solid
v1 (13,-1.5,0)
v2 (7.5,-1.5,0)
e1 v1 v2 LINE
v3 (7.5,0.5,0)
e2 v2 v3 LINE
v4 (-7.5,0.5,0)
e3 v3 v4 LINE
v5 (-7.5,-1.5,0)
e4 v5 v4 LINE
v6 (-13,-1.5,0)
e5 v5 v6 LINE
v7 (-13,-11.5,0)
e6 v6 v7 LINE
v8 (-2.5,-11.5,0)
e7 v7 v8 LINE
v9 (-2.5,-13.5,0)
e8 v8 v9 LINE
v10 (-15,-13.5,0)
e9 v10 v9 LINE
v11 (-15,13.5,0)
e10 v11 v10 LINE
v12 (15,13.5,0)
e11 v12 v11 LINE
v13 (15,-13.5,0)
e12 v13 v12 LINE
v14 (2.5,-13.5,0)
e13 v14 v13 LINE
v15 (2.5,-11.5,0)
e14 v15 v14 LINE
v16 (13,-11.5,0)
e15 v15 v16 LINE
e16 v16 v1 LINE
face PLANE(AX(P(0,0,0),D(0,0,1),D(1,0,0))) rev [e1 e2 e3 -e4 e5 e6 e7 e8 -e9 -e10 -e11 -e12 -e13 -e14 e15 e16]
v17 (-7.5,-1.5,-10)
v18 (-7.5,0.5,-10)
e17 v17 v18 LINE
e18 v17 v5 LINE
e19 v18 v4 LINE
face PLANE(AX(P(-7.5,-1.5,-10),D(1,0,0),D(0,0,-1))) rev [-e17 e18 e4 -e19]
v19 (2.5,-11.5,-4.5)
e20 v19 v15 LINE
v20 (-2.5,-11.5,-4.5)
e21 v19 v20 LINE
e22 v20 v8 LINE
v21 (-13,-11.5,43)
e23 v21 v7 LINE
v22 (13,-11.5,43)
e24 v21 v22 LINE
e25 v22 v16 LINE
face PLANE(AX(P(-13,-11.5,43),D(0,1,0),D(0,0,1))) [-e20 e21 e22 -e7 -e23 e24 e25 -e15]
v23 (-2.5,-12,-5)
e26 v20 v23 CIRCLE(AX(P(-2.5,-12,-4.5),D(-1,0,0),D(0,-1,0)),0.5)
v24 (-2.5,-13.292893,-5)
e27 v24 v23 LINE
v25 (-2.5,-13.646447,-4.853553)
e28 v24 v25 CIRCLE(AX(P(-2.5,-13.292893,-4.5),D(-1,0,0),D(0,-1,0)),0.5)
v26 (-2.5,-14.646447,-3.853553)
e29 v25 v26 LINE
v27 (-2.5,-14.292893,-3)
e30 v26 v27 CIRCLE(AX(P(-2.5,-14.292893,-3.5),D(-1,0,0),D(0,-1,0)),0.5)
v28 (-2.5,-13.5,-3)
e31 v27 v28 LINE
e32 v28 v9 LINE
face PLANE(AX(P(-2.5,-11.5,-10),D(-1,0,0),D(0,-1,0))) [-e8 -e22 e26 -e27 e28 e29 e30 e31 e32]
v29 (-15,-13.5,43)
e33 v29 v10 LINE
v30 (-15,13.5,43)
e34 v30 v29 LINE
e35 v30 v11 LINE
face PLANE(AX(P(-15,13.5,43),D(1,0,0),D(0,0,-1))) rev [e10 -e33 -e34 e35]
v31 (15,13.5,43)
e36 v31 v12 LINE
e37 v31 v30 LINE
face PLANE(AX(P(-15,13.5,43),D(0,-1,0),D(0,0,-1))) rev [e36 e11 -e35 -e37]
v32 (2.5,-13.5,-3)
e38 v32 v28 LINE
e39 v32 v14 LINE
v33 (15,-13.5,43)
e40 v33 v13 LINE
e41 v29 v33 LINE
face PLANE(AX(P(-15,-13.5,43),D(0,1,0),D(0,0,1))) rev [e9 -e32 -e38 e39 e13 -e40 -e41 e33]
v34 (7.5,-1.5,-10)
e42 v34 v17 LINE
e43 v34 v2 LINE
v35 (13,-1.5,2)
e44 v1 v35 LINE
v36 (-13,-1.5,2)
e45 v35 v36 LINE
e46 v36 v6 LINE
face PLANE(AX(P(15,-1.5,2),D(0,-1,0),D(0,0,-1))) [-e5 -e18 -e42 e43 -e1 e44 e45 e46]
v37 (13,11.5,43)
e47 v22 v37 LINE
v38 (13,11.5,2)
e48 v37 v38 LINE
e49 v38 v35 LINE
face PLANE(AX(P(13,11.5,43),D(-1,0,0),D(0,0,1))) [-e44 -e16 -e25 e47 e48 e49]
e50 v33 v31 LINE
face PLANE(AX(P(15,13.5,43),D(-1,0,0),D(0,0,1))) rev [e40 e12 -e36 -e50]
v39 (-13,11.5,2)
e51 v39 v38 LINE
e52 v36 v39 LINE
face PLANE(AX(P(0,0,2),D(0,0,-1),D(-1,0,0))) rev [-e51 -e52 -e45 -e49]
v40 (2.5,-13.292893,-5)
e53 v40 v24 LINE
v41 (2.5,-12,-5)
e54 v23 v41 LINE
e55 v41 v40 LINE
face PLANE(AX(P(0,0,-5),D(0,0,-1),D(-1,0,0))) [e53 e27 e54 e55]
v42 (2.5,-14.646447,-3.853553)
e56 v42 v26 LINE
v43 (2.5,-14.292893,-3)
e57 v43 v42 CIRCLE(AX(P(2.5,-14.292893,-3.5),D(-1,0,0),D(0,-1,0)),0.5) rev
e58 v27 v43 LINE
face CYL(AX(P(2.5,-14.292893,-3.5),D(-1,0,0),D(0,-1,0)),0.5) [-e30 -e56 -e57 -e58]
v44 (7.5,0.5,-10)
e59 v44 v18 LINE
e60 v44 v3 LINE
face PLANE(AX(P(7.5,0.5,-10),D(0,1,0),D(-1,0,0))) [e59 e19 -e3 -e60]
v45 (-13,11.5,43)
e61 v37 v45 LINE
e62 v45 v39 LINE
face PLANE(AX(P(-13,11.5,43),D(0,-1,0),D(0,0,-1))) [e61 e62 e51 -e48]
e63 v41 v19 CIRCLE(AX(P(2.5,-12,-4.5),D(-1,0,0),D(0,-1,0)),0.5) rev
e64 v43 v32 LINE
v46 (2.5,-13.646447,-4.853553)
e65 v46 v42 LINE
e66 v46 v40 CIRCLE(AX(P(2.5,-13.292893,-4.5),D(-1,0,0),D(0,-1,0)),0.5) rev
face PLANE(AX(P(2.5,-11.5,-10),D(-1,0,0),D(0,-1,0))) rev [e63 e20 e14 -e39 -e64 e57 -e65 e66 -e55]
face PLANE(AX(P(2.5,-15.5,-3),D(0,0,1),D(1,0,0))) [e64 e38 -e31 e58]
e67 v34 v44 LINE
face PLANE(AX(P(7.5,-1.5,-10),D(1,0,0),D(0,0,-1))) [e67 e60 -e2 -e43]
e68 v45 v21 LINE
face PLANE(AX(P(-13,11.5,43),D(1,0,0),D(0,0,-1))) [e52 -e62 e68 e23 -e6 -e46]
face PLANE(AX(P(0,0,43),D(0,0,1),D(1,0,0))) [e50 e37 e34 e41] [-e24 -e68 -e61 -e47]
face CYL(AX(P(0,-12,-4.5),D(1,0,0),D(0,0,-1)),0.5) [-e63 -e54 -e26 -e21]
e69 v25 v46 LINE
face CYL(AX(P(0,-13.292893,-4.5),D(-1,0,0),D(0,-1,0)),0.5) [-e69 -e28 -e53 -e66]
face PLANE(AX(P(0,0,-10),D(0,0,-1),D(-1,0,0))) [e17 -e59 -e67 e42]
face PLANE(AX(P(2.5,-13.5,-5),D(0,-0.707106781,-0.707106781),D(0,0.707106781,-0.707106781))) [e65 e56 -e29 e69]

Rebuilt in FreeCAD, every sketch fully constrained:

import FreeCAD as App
import Part
import Sketcher

V = App.Vector
Q = App.Units.Quantity


def edges_at(feature, points):
    """Names of the edges that pass closest to the given points."""
    edges = feature.Shape.Edges
    near = lambda p: min(range(len(edges)), key=lambda i: edges[i].distToShape(Part.Vertex(*p))[0])
    return sorted({f"Edge{near(p) + 1}" for p in points})

doc = App.newDocument("Part")
body = doc.addObject("PartDesign::Body", "Body")

# Sketch on XY plane
sketch1 = body.newObject("Sketcher::SketchObject", "Sketch")
sketch1.AttachmentSupport = (doc.getObject("XY_Plane"), [""])
sketch1.MapMode = "FlatFace"
sketch1.addGeometry([
    Part.LineSegment(V(-15, 14, 0), V(-15, -14, 0)),  # 0
    Part.LineSegment(V(-15, -14, 0), V(15, -14, 0)),  # 1
    Part.LineSegment(V(15, -14, 0), V(15, 14, 0)),  # 2
    Part.LineSegment(V(15, 14, 0), V(-15, 14, 0)),  # 3
    Part.LineSegment(V(13, -12, 0), V(-13, -12, 0)),  # 4
    Part.LineSegment(V(-13, -12, 0), V(-13, 12, 0)),  # 5
    Part.LineSegment(V(-13, 12, 0), V(13, 12, 0)),  # 6
    Part.LineSegment(V(13, 12, 0), V(13, -12, 0)),  # 7
], False)
sketch1.addConstraint([
    Sketcher.Constraint("Coincident", 0, 2, 1, 1),
    Sketcher.Constraint("Coincident", 1, 2, 2, 1),
    Sketcher.Constraint("Coincident", 2, 2, 3, 1),
    Sketcher.Constraint("Coincident", 3, 2, 0, 1),
    Sketcher.Constraint("Coincident", 4, 2, 5, 1),
    Sketcher.Constraint("Coincident", 5, 2, 6, 1),
    Sketcher.Constraint("Coincident", 6, 2, 7, 1),
    Sketcher.Constraint("Coincident", 7, 2, 4, 1),
    Sketcher.Constraint("Vertical", 0),
    Sketcher.Constraint("Horizontal", 1),
    Sketcher.Constraint("Vertical", 2),
    Sketcher.Constraint("Horizontal", 3),
    Sketcher.Constraint("Horizontal", 4),
    Sketcher.Constraint("Vertical", 5),
    Sketcher.Constraint("Horizontal", 6),
    Sketcher.Constraint("Vertical", 7),
    Sketcher.Constraint("Symmetric", 0, 2, 2, 2, -1, 1),
    Sketcher.Constraint("Symmetric", 4, 2, 6, 2, -1, 1),
    Sketcher.Constraint("DistanceX", 1, 1, 1, 2, Q("30 mm")),
    Sketcher.Constraint("DistanceX", 4, 2, 4, 1, Q("26 mm")),
    Sketcher.Constraint("DistanceY", 0, 2, 0, 1, Q("27 mm")),
    Sketcher.Constraint("DistanceY", 5, 1, 5, 2, Q("23 mm")),
])
pad1 = body.newObject("PartDesign::Pad", "Pad")
pad1.Profile = sketch1
pad1.Length = 43

# Sketch on XY plane
sketch2 = body.newObject("Sketcher::SketchObject", "Sketch001")
sketch2.AttachmentSupport = (doc.getObject("XY_Plane"), [""])
sketch2.MapMode = "FlatFace"
sketch2.addGeometry([
    Part.LineSegment(V(15, 14, 0), V(15, -2, 0)),
    Part.LineSegment(V(15, -2, 0), V(-15, -2, 0)),
    Part.LineSegment(V(-15, -2, 0), V(-15, 14, 0)),
    Part.LineSegment(V(-15, 14, 0), V(15, 14, 0)),
], False)
sketch2.addConstraint([
    Sketcher.Constraint("Coincident", 0, 2, 1, 1),
    Sketcher.Constraint("Coincident", 1, 2, 2, 1),
    Sketcher.Constraint("Coincident", 2, 2, 3, 1),
    Sketcher.Constraint("Coincident", 3, 2, 0, 1),
    Sketcher.Constraint("Vertical", 0),
    Sketcher.Constraint("Horizontal", 1),
    Sketcher.Constraint("Vertical", 2),
    Sketcher.Constraint("Horizontal", 3),
    Sketcher.Constraint("DistanceX", 1, 2, 1, 1, Q("30 mm")),
    Sketcher.Constraint("DistanceY", 0, 2, 0, 1, Q("15 mm")),
    Sketcher.Constraint("DistanceX", -1, 1, 0, 2, Q("15 mm")),
    Sketcher.Constraint("DistanceY", 0, 2, -1, 1, Q("1.5 mm")),
])
pad2 = body.newObject("PartDesign::Pad", "Pad001")
pad2.Profile = sketch2
pad2.Length = 2

# Sketch on XY plane
sketch3 = body.newObject("Sketcher::SketchObject", "Sketch002")
sketch3.AttachmentSupport = (doc.getObject("XY_Plane"), [""])
sketch3.MapMode = "FlatFace"
sketch3.addGeometry([
    Part.LineSegment(V(7.5, 0.5, 0), V(7.5, -1.5, 0)),  # 0
    Part.LineSegment(V(7.5, -1.5, 0), V(-7.5, -1.5, 0)),  # 1
    Part.LineSegment(V(-7.5, -1.5, 0), V(-7.5, 0.5, 0)),  # 2
    Part.LineSegment(V(-7.5, 0.5, 0), V(7.5, 0.5, 0)),  # 3
    Part.LineSegment(V(2.5, -11.5, 0), V(2.5, -13.5, 0)),  # 4
    Part.LineSegment(V(2.5, -13.5, 0), V(-2.5, -13.5, 0)),  # 5
    Part.LineSegment(V(-2.5, -13.5, 0), V(-2.5, -11.5, 0)),  # 6
    Part.LineSegment(V(-2.5, -11.5, 0), V(2.5, -11.5, 0)),  # 7
], False)
sketch3.addConstraint([
    Sketcher.Constraint("Coincident", 0, 2, 1, 1),
    Sketcher.Constraint("Coincident", 1, 2, 2, 1),
    Sketcher.Constraint("Coincident", 2, 2, 3, 1),
    Sketcher.Constraint("Coincident", 3, 2, 0, 1),
    Sketcher.Constraint("Coincident", 4, 2, 5, 1),
    Sketcher.Constraint("Coincident", 5, 2, 6, 1),
    Sketcher.Constraint("Coincident", 6, 2, 7, 1),
    Sketcher.Constraint("Coincident", 7, 2, 4, 1),
    Sketcher.Constraint("Vertical", 0),
    Sketcher.Constraint("Horizontal", 1),
    Sketcher.Constraint("Vertical", 2),
    Sketcher.Constraint("Horizontal", 3),
    Sketcher.Constraint("Vertical", 4),
    Sketcher.Constraint("Horizontal", 5),
    Sketcher.Constraint("Vertical", 6),
    Sketcher.Constraint("Horizontal", 7),
    Sketcher.Constraint("Equal", 2, 4),
    Sketcher.Constraint("DistanceX", 1, 2, 1, 1, Q("15 mm")),
    Sketcher.Constraint("DistanceX", 5, 2, 5, 1, Q("5 mm")),
    Sketcher.Constraint("DistanceY", 0, 2, 0, 1, Q("2 mm")),
    Sketcher.Constraint("DistanceX", 4, 2, 0, 2, Q("5 mm")),
    Sketcher.Constraint("DistanceY", 4, 2, 0, 2, Q("12 mm")),
    Sketcher.Constraint("DistanceX", -1, 1, 0, 2, Q("7.5 mm")),
    Sketcher.Constraint("DistanceY", 0, 2, -1, 1, Q("1.5 mm")),
])
pad3 = body.newObject("PartDesign::Pad", "Pad002")
pad3.Profile = sketch3
pad3.Length = 10
pad3.Reversed = True

# Sketch on YZ plane
sketch4 = body.newObject("Sketcher::SketchObject", "Sketch003")
sketch4.AttachmentSupport = (doc.getObject("YZ_Plane"), [""])
sketch4.MapMode = "FlatFace"
sketch4.AttachmentOffset = App.Placement(V(0, 0, -2.5), App.Rotation())
sketch4.addGeometry([
    Part.LineSegment(V(-13.5, -5, 0), V(-15.5, -3, 0)),
    Part.LineSegment(V(-15.5, -3, 0), V(-13.5, -3, 0)),
    Part.LineSegment(V(-13.5, -3, 0), V(-13.5, -5, 0)),
], False)
sketch4.addConstraint([
    Sketcher.Constraint("Coincident", 0, 2, 1, 1),
    Sketcher.Constraint("Coincident", 1, 2, 2, 1),
    Sketcher.Constraint("Coincident", 2, 2, 0, 1),
    Sketcher.Constraint("Horizontal", 1),
    Sketcher.Constraint("Vertical", 2),
    Sketcher.Constraint("Equal", 1, 2),
    Sketcher.Constraint("DistanceX", 1, 1, 1, 2, Q("2 mm")),
    Sketcher.Constraint("DistanceY", 0, 2, -1, 1, Q("3 mm")),
    Sketcher.Constraint("DistanceX", 0, 2, -1, 1, Q("15.5 mm")),
])
pad4 = body.newObject("PartDesign::Pad", "Pad003")
pad4.Profile = sketch4
pad4.Length = 5

# Sketch on XY plane
sketch5 = body.newObject("Sketcher::SketchObject", "Sketch004")
sketch5.AttachmentSupport = (doc.getObject("XY_Plane"), [""])
sketch5.MapMode = "FlatFace"
sketch5.AttachmentOffset = App.Placement(V(0, 0, -10), App.Rotation())
sketch5.addGeometry([
    Part.LineSegment(V(2.5, -11.5, 0), V(2.5, -13.5, 0)),
    Part.LineSegment(V(2.5, -13.5, 0), V(-2.5, -13.5, 0)),
    Part.LineSegment(V(-2.5, -13.5, 0), V(-2.5, -11.5, 0)),
    Part.LineSegment(V(-2.5, -11.5, 0), V(2.5, -11.5, 0)),
], False)
sketch5.addConstraint([
    Sketcher.Constraint("Coincident", 0, 2, 1, 1),
    Sketcher.Constraint("Coincident", 1, 2, 2, 1),
    Sketcher.Constraint("Coincident", 2, 2, 3, 1),
    Sketcher.Constraint("Coincident", 3, 2, 0, 1),
    Sketcher.Constraint("Vertical", 0),
    Sketcher.Constraint("Horizontal", 1),
    Sketcher.Constraint("Vertical", 2),
    Sketcher.Constraint("Horizontal", 3),
    Sketcher.Constraint("DistanceX", 1, 2, 1, 1, Q("5 mm")),
    Sketcher.Constraint("DistanceY", 0, 2, 0, 1, Q("2 mm")),
    Sketcher.Constraint("DistanceX", -1, 1, 0, 2, Q("2.5 mm")),
    Sketcher.Constraint("DistanceY", 0, 2, -1, 1, Q("13.5 mm")),
])
pocket1 = body.newObject("PartDesign::Pocket", "Pocket")
pocket1.Profile = sketch5
pocket1.Length = 5
pocket1.Reversed = True
doc.recompute()

fillet = body.newObject("PartDesign::Fillet", "Fillet")
fillet.Base = (pocket1, edges_at(pocket1, [(0, -13.5, -5), (0, -15.5, -3), (0, -11.5, -5)]))
fillet.Radius = 0.5

doc.recompute()
